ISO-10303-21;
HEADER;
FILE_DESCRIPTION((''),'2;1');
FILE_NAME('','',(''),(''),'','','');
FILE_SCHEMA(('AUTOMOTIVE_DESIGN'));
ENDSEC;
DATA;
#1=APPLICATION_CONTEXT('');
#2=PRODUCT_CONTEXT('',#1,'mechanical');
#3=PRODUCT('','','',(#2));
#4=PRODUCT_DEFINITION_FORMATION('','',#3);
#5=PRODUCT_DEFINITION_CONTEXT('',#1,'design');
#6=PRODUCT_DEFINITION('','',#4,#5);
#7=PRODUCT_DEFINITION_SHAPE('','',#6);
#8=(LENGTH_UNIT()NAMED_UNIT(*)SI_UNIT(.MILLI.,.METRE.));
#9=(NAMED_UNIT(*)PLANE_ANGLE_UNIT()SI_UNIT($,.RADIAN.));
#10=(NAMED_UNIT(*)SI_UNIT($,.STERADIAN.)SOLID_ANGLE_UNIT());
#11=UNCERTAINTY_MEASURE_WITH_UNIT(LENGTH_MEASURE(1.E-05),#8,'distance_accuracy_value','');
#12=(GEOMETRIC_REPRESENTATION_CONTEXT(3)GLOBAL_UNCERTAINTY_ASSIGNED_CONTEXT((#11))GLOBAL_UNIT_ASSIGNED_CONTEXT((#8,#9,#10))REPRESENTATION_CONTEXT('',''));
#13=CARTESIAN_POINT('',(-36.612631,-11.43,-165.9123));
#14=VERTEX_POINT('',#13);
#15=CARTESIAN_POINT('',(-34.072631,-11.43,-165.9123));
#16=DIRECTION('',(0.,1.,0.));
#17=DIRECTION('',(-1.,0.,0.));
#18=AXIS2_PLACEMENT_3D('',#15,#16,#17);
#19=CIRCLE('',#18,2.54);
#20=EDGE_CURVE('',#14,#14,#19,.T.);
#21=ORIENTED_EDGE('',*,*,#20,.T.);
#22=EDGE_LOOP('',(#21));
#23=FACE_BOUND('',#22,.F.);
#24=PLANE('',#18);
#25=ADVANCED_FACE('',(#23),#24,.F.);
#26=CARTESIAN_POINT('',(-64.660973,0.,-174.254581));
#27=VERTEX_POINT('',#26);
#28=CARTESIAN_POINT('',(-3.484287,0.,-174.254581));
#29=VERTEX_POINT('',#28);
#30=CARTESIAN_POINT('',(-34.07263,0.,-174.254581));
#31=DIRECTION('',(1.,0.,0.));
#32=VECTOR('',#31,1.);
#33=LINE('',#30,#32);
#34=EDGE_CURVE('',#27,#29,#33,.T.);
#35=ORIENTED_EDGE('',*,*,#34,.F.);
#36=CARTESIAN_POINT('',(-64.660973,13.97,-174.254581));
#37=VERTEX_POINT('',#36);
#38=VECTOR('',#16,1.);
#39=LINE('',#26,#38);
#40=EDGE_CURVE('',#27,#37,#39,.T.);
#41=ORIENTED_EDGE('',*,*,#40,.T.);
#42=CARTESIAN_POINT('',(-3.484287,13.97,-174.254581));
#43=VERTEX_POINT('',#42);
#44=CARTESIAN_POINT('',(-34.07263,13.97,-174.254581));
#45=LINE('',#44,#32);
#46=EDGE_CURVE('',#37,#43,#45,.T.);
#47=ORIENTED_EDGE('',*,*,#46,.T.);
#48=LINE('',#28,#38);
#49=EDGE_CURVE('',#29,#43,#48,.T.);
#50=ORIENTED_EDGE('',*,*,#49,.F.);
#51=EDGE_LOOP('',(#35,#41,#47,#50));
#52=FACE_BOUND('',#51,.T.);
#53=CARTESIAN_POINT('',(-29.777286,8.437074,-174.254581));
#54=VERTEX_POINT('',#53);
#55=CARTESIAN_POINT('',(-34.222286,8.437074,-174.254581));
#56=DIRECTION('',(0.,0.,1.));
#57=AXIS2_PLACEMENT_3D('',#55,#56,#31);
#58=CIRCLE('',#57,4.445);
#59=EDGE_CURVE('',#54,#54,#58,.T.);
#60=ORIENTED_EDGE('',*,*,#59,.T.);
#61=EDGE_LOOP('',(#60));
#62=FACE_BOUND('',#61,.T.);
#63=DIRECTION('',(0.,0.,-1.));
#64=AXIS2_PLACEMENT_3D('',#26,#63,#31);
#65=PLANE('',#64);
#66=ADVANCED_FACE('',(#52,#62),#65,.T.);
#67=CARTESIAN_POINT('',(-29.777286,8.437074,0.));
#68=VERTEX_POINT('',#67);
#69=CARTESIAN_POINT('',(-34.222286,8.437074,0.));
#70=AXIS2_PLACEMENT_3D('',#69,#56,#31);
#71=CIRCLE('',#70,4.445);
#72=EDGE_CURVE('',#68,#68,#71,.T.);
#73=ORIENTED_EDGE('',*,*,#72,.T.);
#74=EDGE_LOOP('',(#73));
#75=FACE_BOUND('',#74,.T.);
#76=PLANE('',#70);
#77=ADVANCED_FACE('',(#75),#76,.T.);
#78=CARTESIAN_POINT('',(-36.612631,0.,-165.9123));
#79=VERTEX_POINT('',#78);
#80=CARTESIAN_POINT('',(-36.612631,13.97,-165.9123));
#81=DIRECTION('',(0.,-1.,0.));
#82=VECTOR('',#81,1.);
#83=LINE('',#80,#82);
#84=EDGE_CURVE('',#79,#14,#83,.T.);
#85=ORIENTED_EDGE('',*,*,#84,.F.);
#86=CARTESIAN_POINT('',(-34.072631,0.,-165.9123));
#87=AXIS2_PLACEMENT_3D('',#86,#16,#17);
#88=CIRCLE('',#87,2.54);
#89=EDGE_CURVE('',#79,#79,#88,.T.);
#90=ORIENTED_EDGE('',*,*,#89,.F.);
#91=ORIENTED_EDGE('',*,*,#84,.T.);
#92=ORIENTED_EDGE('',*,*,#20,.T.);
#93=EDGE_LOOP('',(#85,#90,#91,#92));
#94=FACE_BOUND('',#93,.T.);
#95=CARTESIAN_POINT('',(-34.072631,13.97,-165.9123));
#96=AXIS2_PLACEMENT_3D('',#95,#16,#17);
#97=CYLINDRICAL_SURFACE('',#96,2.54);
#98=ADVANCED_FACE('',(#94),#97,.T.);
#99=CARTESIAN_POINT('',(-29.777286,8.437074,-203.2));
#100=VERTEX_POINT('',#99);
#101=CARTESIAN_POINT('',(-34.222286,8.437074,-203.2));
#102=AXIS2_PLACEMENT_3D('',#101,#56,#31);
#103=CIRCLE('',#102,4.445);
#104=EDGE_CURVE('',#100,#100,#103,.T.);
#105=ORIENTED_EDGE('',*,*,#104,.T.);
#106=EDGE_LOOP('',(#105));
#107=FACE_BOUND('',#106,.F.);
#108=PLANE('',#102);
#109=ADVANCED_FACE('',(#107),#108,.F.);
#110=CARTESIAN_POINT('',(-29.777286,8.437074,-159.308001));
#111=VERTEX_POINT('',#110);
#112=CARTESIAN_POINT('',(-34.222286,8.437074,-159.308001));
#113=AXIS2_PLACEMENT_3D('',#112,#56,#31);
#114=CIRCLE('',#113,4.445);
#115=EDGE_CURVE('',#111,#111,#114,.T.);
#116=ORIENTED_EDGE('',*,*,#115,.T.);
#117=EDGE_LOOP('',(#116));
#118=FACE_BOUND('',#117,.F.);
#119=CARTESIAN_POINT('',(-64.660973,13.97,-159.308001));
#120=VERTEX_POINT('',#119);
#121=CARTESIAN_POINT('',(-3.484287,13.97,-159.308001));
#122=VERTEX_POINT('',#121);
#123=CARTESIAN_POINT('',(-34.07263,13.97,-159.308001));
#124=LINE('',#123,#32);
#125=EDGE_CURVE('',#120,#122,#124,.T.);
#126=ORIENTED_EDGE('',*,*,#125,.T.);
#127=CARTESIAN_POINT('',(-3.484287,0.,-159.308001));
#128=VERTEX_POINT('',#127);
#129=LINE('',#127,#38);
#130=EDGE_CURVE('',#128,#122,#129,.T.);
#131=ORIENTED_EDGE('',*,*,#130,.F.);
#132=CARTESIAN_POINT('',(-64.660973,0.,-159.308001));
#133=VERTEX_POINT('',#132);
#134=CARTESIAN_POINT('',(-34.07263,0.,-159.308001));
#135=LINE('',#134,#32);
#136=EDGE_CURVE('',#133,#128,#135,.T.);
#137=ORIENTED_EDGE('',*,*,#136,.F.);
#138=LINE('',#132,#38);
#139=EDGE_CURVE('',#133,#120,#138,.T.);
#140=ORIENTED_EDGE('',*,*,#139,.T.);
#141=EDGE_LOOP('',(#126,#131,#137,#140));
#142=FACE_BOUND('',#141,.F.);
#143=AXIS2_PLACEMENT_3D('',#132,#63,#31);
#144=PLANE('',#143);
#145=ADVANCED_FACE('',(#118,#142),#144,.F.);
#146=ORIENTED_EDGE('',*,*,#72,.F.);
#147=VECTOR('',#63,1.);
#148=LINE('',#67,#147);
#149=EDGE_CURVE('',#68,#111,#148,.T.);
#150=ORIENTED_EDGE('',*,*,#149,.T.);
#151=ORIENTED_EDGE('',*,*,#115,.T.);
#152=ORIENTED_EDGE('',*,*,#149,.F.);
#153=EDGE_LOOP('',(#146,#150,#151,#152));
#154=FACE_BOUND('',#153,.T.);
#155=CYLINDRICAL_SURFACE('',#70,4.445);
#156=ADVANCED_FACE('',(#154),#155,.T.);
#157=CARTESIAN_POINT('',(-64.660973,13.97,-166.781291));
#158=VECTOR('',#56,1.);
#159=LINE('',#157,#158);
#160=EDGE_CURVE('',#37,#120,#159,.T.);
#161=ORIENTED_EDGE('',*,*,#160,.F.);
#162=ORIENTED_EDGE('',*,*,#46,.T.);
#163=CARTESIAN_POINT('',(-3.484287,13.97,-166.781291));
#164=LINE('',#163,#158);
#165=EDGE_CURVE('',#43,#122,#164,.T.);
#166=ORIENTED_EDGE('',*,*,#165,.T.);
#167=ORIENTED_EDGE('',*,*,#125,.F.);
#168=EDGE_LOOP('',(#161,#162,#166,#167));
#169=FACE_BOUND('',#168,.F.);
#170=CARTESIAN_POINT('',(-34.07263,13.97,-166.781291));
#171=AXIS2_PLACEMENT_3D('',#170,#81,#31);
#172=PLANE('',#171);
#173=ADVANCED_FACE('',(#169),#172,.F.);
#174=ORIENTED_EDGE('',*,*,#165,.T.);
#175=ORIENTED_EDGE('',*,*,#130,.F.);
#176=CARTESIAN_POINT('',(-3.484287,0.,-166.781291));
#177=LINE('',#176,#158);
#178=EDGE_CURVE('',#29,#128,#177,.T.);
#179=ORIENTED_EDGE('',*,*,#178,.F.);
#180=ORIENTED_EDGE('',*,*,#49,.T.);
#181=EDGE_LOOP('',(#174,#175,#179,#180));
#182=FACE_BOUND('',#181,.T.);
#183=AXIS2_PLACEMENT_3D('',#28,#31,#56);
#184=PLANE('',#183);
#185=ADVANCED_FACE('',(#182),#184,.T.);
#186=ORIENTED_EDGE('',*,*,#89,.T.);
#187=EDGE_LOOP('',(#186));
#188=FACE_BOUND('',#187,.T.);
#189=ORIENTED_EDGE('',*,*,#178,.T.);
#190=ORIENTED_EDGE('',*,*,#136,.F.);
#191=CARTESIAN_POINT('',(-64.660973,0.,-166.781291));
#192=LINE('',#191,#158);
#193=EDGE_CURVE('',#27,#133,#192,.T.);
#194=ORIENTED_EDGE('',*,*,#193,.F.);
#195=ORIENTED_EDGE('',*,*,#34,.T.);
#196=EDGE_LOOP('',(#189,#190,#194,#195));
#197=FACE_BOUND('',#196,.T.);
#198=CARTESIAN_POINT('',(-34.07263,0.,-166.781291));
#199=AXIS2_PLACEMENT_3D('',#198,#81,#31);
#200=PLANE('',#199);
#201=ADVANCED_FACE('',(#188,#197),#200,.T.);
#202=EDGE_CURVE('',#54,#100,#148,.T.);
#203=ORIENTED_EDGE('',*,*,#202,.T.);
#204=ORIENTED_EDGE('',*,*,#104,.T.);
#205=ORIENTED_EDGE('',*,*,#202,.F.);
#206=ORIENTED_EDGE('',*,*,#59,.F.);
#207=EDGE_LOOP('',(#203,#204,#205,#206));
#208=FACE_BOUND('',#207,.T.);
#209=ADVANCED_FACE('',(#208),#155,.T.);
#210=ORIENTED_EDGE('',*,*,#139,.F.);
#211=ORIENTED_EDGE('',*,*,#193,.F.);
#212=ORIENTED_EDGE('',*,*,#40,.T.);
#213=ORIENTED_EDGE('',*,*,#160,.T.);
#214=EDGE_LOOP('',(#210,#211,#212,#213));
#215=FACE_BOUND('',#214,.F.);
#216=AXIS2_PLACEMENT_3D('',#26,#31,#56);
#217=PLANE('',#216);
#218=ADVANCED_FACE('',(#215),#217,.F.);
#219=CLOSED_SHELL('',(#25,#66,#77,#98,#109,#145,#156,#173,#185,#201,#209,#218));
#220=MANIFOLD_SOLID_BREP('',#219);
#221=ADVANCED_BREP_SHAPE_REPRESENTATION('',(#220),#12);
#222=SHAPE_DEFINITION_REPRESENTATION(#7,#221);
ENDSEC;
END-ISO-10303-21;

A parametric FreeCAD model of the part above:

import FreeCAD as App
import Part
import Sketcher

V = App.Vector
Q = App.Units.Quantity


def add_polygon(sketch, points):
    """Adds a closed chain of lines whose ends are joined by coincident constraints."""
    first, n = sketch.GeometryCount, len(points)
    for a, b in zip(points, points[1:] + points[:1]):
        sketch.addGeometry(Part.LineSegment(App.Vector(*a, 0), App.Vector(*b, 0)), False)
    for i in range(n):
        sketch.addConstraint(Sketcher.Constraint("Coincident", first + i, 2, first + (i + 1) % n, 1))

doc = App.newDocument("Part")
body = doc.addObject("PartDesign::Body", "Body")

# Sketch on XY plane
sketch1 = body.newObject("Sketcher::SketchObject", "Sketch")
sketch1.AttachmentSupport = (doc.getObject("XY_Plane"), [""])
sketch1.MapMode = "FlatFace"
sketch1.addGeometry(Part.Circle(V(-34.222286, 8.437074, 0), V(0, 0, 1), 4.445), False)
sketch1.addConstraint(Sketcher.Constraint("Diameter", 0, Q("0.35 in")))
sketch1.addConstraint(Sketcher.Constraint("DistanceX", 0, 3, -1, 1, Q("34.222286 mm")))
sketch1.addConstraint(Sketcher.Constraint("DistanceY", -1, 1, 0, 3, Q("8.437074 mm")))
pad1 = body.newObject("PartDesign::Pad", "Pad")
pad1.Profile = sketch1
pad1.Length = Q("8 in")
pad1.Reversed = True

# Sketch on XZ plane
sketch2 = body.newObject("Sketcher::SketchObject", "Sketch001")
sketch2.AttachmentSupport = (doc.getObject("XZ_Plane"), [""])
sketch2.MapMode = "FlatFace"
add_polygon(sketch2, [(-64.660973, -159.308001), (-64.660973, -174.254581), (-3.484287, -174.254581), (-3.484287, -159.308001)])  # lines 0-3
sketch2.addGeometry(Part.Circle(V(-34.072631, -165.9123, 0), V(0, 0, 1), 2.485662), False)  # 4
sketch2.addConstraint(Sketcher.Constraint("Vertical", 0))
sketch2.addConstraint(Sketcher.Constraint("Horizontal", 1))
sketch2.addConstraint(Sketcher.Constraint("Vertical", 2))
sketch2.addConstraint(Sketcher.Constraint("Horizontal", 3))
sketch2.addConstraint(Sketcher.Constraint("Diameter", 4, Q("4.971324 mm")))
sketch2.addConstraint(Sketcher.Constraint("DistanceY", 0, 2, 0, 1, Q("14.94658 mm")))
sketch2.addConstraint(Sketcher.Constraint("DistanceY", 4, 3, -1, 1, Q("165.9123 mm")))
sketch2.addConstraint(Sketcher.Constraint("DistanceY", 2, 2, -1, 1, Q("159.308001 mm")))
sketch2.addConstraint(Sketcher.Constraint("DistanceX", 1, 1, 1, 2, Q("61.176687 mm")))
sketch2.addConstraint(Sketcher.Constraint("DistanceX", 4, 3, -1, 1, Q("34.072631 mm")))
sketch2.addConstraint(Sketcher.Constraint("DistanceX", 0, 2, -1, 1, Q("64.660973 mm")))
pad2 = body.newObject("PartDesign::Pad", "Pad001")
pad2.Profile = sketch2
pad2.Length = Q("0.55 in")
pad2.Reversed = True

# Sketch on XZ plane
sketch3 = body.newObject("Sketcher::SketchObject", "Sketch002")
sketch3.AttachmentSupport = (doc.getObject("XZ_Plane"), [""])
sketch3.MapMode = "FlatFace"
sketch3.AttachmentOffset = App.Placement(V(0, 0, -0.55 * 25.4), App.Rotation())
sketch3.addGeometry(Part.Circle(V(-34.072631, -165.9123, 0), V(0, 0, 1), 2.54), False)
sketch3.addConstraint(Sketcher.Constraint("Diameter", 0, Q("0.2 in")))
sketch3.addConstraint(Sketcher.Constraint("DistanceY", 0, 3, -1, 1, Q("165.9123 mm")))
sketch3.addConstraint(Sketcher.Constraint("DistanceX", 0, 3, -1, 1, Q("34.072631 mm")))
pad3 = body.newObject("PartDesign::Pad", "Pad002")
pad3.Profile = sketch3
pad3.Length = Q("1 in")

doc.recompute()
